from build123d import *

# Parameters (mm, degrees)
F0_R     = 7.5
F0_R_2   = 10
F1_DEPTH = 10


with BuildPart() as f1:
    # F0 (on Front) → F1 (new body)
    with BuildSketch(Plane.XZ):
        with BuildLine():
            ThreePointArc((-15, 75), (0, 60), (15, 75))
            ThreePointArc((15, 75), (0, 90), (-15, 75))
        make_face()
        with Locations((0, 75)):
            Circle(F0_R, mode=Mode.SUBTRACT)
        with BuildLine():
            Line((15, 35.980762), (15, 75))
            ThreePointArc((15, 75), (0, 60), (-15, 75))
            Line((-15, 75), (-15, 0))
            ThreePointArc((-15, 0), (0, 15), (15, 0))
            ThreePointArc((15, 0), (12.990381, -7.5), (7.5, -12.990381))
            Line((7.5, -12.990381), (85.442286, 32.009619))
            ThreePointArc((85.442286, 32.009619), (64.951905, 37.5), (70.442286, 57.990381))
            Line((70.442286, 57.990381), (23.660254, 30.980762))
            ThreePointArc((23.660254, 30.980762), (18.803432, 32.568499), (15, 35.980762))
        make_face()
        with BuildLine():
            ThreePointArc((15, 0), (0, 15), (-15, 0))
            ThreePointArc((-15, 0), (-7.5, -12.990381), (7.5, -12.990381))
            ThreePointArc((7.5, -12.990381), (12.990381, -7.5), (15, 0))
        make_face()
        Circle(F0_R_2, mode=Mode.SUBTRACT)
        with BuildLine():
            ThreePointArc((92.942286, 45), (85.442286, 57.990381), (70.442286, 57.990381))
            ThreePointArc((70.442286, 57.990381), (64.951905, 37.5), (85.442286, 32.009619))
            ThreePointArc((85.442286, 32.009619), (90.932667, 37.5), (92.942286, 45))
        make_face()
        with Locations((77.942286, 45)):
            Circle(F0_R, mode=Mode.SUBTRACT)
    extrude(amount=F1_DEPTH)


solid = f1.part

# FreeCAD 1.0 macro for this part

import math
import FreeCAD as App
import Part
import Sketcher
from FreeCAD import Vector
Q = App.Units.Quantity

doc = App.newDocument("Part")
body = doc.addObject("PartDesign::Body", "Body")

sketch1 = body.newObject("Sketcher::SketchObject", "Sketch")
sketch1.AttachmentSupport = (doc.getObject("XZ_Plane"), [""])
sketch1.MapMode = "FlatFace"
sketch1.addGeometry([
    Part.ArcOfCircle(Part.Circle(Vector(0, 75, 0), Vector(0, 0, 1), 15), math.radians(0), math.radians(180)),
    Part.LineSegment(Vector(-15, 75, 0), Vector(-15, 0, 0)),
    Part.ArcOfCircle(Part.Circle(Vector(0, 0, 0), Vector(0, 0, 1), 15), math.radians(-180), math.radians(-60)),
    Part.LineSegment(Vector(8, -13, 0), Vector(85, 32, 0)),
    Part.ArcOfCircle(Part.Circle(Vector(78, 45, 0), Vector(0, 0, 1), 15), math.radians(-60), math.radians(0)),
    Part.ArcOfCircle(Part.Circle(Vector(78, 45, 0), Vector(0, 0, 1), 15), math.radians(0), math.radians(120)),
    Part.LineSegment(Vector(70, 58, 0), Vector(24, 31, 0)),
    Part.ArcOfCircle(Part.Circle(Vector(25, 43, 0), Vector(0, 0, 1), 12), math.radians(-144), math.radians(-96)),
    Part.LineSegment(Vector(15, 36, 0), Vector(15, 75, 0)),
    Part.Circle(Vector(0, 0, 0), Vector(0, 0, 1), 10),
    Part.Circle(Vector(0, 75, 0), Vector(0, 0, 1), 8),
    Part.Circle(Vector(78, 45, 0), Vector(0, 0, 1), 8),
], False)
sketch1.addConstraint([
    Sketcher.Constraint("Tangent", 0, 2, 1, 1),
    Sketcher.Constraint("Tangent", 1, 2, 2, 1),
    Sketcher.Constraint("Tangent", 2, 2, 3, 1),
    Sketcher.Constraint("Tangent", 3, 2, 4, 1),
    Sketcher.Constraint("Tangent", 4, 2, 5, 1),
    Sketcher.Constraint("Tangent", 5, 2, 6, 1),
    Sketcher.Constraint("Coincident", 6, 2, 7, 2),
    Sketcher.Constraint("Coincident", 7, 1, 8, 1),
    Sketcher.Constraint("Tangent", 8, 2, 0, 1),
    Sketcher.Constraint("Vertical", 1),
    Sketcher.Constraint("Vertical", 8),
    Sketcher.Constraint("Coincident", 2, 3, -1, 1),
    Sketcher.Constraint("Coincident", 9, 3, -1, 1),
    Sketcher.Constraint("Coincident", 10, 3, 0, 3),
    Sketcher.Constraint("Coincident", 11, 3, 4, 3),
    Sketcher.Constraint("Equal", 0, 2),
    Sketcher.Constraint("Equal", 2, 4),
    Sketcher.Constraint("Equal", 4, 5),
    Sketcher.Constraint("Equal", 10, 11),
    Sketcher.Constraint("Parallel", 3, 6),
    Sketcher.Constraint("Horizontal", 11, 3, 4, 2),
    Sketcher.Constraint("Diameter", 9, Q("20 mm")),
    Sketcher.Constraint("Diameter", 10, Q("15 mm")),
    Sketcher.Constraint("Radius", 0, Q("15 mm")),
    Sketcher.Constraint("DistanceY", 1, 2, 1, 1, Q("75 mm")),
    Sketcher.Constraint("Angle", 3, Q("30 deg")),
    Sketcher.Constraint("Distance", 3, Q("90 mm")),
    Sketcher.Constraint("DistanceY", 6, 2, 7, 1, Q("5 mm")),
    Sketcher.Constraint("Radius", 7, Q("12.39314 mm")),
    Sketcher.Constraint("DistanceY", 8, 1, 8, 2, Q("39.019238 mm")),
])
pad1 = body.newObject("PartDesign::Pad", "Pad")
pad1.Profile = sketch1
pad1.Length = 10

doc.recompute()
